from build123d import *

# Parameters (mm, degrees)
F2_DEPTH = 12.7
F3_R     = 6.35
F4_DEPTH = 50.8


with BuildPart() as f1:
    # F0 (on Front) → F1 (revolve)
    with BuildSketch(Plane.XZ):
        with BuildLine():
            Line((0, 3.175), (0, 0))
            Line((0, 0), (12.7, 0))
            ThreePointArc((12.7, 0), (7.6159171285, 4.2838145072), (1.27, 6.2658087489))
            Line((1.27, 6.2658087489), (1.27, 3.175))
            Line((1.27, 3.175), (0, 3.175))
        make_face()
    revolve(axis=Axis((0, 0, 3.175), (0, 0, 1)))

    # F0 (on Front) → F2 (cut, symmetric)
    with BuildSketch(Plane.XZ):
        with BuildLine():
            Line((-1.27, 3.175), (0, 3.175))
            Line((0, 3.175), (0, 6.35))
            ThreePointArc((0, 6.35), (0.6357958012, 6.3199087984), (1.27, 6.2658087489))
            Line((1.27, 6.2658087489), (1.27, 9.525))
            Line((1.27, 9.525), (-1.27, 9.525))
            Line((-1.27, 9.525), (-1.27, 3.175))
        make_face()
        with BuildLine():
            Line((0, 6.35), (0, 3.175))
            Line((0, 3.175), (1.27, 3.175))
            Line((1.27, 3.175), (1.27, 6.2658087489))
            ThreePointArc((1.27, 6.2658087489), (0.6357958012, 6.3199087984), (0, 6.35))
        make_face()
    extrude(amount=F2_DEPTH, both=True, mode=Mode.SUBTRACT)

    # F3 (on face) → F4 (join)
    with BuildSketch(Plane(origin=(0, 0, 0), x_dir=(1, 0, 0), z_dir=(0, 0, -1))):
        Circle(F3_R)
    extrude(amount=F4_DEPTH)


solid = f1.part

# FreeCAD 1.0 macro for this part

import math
import FreeCAD as App
import Part
import Sketcher
Q = App.Units.Quantity

doc = App.newDocument("Part")
body = doc.addObject("PartDesign::Body", "Body")

# Sketch on XZ plane
sketch1 = body.newObject("Sketcher::SketchObject", "Sketch")
sketch1.AttachmentSupport = (doc.getObject("XZ_Plane"), [""])
sketch1.MapMode = "FlatFace"
sketch1.addGeometry([
    Part.LineSegment(App.Vector(0, 3.2, 0), App.Vector(0, 0, 0)),  # 0
    Part.LineSegment(App.Vector(0, 0, 0), App.Vector(12.7, 0, 0)),  # 1
    Part.ArcOfCircle(Part.Circle(App.Vector(-0.5, -10.5, 0), App.Vector(0, 0, 1), 16.8), math.radians(38), math.radians(84)),  # 2
    Part.LineSegment(App.Vector(1.3, 6.3, 0), App.Vector(1.3, 3.2, 0)),  # 3
    Part.LineSegment(App.Vector(1.3, 3.2, 0), App.Vector(0, 3.2, 0)),  # 4
], False)
sketch1.addConstraint([
    Sketcher.Constraint("Coincident", 0, 2, 1, 1),
    Sketcher.Constraint("Coincident", 1, 2, 2, 1),
    Sketcher.Constraint("Coincident", 2, 2, 3, 1),
    Sketcher.Constraint("Coincident", 3, 2, 4, 1),
    Sketcher.Constraint("Coincident", 4, 2, 0, 1),
    Sketcher.Constraint("Vertical", 0),
    Sketcher.Constraint("Horizontal", 1),
    Sketcher.Constraint("Vertical", 3),
    Sketcher.Constraint("Horizontal", 4),
    Sketcher.Constraint("Coincident", 0, 2, -1, 1),
    Sketcher.Constraint("DistanceX", 1, 1, 1, 2, Q("0.5 in")),
    Sketcher.Constraint("DistanceX", 4, 2, 4, 1, Q("0.05 in")),
    Sketcher.Constraint("DistanceY", 0, 2, 0, 1, Q("0.125 in")),
    Sketcher.Constraint("Radius", 2, 16.837729),
    Sketcher.Constraint("DistanceY", 3, 2, 3, 1, 3.090809),
])
revolution = body.newObject("PartDesign::Revolution", "Revolution")
revolution.Profile = sketch1
revolution.ReferenceAxis = (sketch1, ["V_Axis"])
revolution.Angle = 360

# Sketch on XZ plane
sketch2 = body.newObject("Sketcher::SketchObject", "Sketch001")
sketch2.AttachmentSupport = (doc.getObject("XZ_Plane"), [""])
sketch2.MapMode = "FlatFace"
sketch2.addGeometry([
    Part.LineSegment(App.Vector(-1.3, 3.2, 0), App.Vector(1.3, 3.2, 0)),
    Part.LineSegment(App.Vector(1.3, 3.2, 0), App.Vector(1.3, 9.5, 0)),
    Part.LineSegment(App.Vector(1.3, 9.5, 0), App.Vector(-1.3, 9.5, 0)),
    Part.LineSegment(App.Vector(-1.3, 9.5, 0), App.Vector(-1.3, 3.2, 0)),
], False)
sketch2.addConstraint([
    Sketcher.Constraint("Coincident", 0, 2, 1, 1),
    Sketcher.Constraint("Coincident", 1, 2, 2, 1),
    Sketcher.Constraint("Coincident", 2, 2, 3, 1),
    Sketcher.Constraint("Coincident", 3, 2, 0, 1),
    Sketcher.Constraint("Horizontal", 0),
    Sketcher.Constraint("Vertical", 1),
    Sketcher.Constraint("Horizontal", 2),
    Sketcher.Constraint("Vertical", 3),
    Sketcher.Constraint("DistanceX", 0, 1, 0, 2, Q("0.1 in")),
    Sketcher.Constraint("DistanceY", 1, 1, 1, 2, Q("0.25 in")),
    Sketcher.Constraint("DistanceX", -1, 1, 0, 2, Q("0.05 in")),
    Sketcher.Constraint("DistanceY", -1, 1, 0, 2, Q("0.125 in")),
])
pocket1 = body.newObject("PartDesign::Pocket", "Pocket")
pocket1.Profile = sketch2
pocket1.Length = Q("1 in")
pocket1.Midplane = True

# Sketch on XY plane
sketch3 = body.newObject("Sketcher::SketchObject", "Sketch002")
sketch3.AttachmentSupport = (doc.getObject("XY_Plane"), [""])
sketch3.MapMode = "FlatFace"
sketch3.addGeometry(Part.Circle(App.Vector(0, 0, 0), App.Vector(0, 0, 1), 6), False)
sketch3.addConstraint([
    Sketcher.Constraint("Coincident", 0, 3, -1, 1),
    Sketcher.Constraint("Diameter", 0, Q("0.5 in")),
])
pad1 = body.newObject("PartDesign::Pad", "Pad")
pad1.Profile = sketch3
pad1.Length = Q("2 in")
pad1.Reversed = True

doc.recompute()
